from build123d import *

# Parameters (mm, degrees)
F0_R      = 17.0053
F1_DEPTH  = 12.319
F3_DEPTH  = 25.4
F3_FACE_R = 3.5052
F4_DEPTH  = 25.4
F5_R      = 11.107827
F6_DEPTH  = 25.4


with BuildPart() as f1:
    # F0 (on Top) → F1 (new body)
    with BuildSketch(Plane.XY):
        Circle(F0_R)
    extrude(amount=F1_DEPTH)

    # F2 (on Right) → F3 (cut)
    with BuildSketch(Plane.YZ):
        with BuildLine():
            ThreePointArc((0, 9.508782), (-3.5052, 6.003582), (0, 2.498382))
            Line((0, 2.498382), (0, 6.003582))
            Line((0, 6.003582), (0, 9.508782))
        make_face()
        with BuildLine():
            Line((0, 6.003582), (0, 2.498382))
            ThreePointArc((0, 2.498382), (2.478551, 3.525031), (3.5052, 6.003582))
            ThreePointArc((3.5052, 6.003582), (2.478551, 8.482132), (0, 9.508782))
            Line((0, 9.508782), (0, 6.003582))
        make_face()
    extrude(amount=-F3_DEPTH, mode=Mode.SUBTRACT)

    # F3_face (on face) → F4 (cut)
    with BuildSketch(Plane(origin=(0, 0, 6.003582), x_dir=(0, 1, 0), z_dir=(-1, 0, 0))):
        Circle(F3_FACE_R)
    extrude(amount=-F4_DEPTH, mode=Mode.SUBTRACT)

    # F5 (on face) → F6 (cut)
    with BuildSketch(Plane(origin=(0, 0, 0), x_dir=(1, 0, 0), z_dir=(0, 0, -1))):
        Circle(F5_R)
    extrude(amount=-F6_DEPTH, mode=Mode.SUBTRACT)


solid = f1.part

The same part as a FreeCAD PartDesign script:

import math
import FreeCAD as App
import Part
import Sketcher
from FreeCAD import Vector
Q = App.Units.Quantity

doc = App.newDocument("Part")
body = doc.addObject("PartDesign::Body", "Body")

# Sketch on XY plane
sketch1 = body.newObject("Sketcher::SketchObject", "Sketch")
sketch1.AttachmentSupport = (doc.getObject("XY_Plane"), [""])
sketch1.MapMode = "FlatFace"
sketch1.addGeometry(Part.Circle(Vector(0, 0, 0), Vector(0, 0, 1), 17), False)
sketch1.addConstraint([
    Sketcher.Constraint("Coincident", 0, 3, -1, 1),
    Sketcher.Constraint("Diameter", 0, Q("1.339 in")),
])
pad1 = body.newObject("PartDesign::Pad", "Pad")
pad1.Profile = sketch1
pad1.Length = Q("0.485 in")

# Sketch on YZ plane
sketch2 = body.newObject("Sketcher::SketchObject", "Sketch001")
sketch2.AttachmentSupport = (doc.getObject("YZ_Plane"), [""])
sketch2.MapMode = "FlatFace"
sketch2.addGeometry([
    Part.ArcOfCircle(Part.Circle(Vector(0, 6, 0), Vector(0, 0, 1), 3.5), math.radians(90), math.radians(270)),
    Part.ArcOfCircle(Part.Circle(Vector(0, 6, 0), Vector(0, 0, 1), 3.5), math.radians(-90), math.radians(0)),
    Part.ArcOfCircle(Part.Circle(Vector(0, 6, 0), Vector(0, 0, 1), 3.5), math.radians(0), math.radians(90)),
], False)
sketch2.addConstraint([
    Sketcher.Constraint("Tangent", 0, 2, 1, 1),
    Sketcher.Constraint("Tangent", 1, 2, 2, 1),
    Sketcher.Constraint("Tangent", 2, 2, 0, 1),
    Sketcher.Constraint("PointOnObject", 0, 3, -2),
    Sketcher.Constraint("PointOnObject", 0, 2, -2),
    Sketcher.Constraint("PointOnObject", 2, 2, -2),
    Sketcher.Constraint("Horizontal", 2, 3, 1, 2),
    Sketcher.Constraint("Radius", 0, Q("0.138 in")),
    Sketcher.Constraint("DistanceY", -1, 1, 0, 3, 6.003582),
])
pocket1 = body.newObject("PartDesign::Pocket", "Pocket")
pocket1.Profile = sketch2
pocket1.Length = Q("1 in")

# Sketch on YZ plane
sketch3 = body.newObject("Sketcher::SketchObject", "Sketch002")
sketch3.AttachmentSupport = (doc.getObject("YZ_Plane"), [""])
sketch3.MapMode = "FlatFace"
sketch3.addGeometry(Part.Circle(Vector(0, 6, 0), Vector(0, 0, 1), 3.5), False)
sketch3.addConstraint([
    Sketcher.Constraint("PointOnObject", 0, 3, -2),
    Sketcher.Constraint("Diameter", 0, Q("0.276 in")),
    Sketcher.Constraint("DistanceY", -1, 1, 0, 3, 6.003582),
])
pocket2 = body.newObject("PartDesign::Pocket", "Pocket001")
pocket2.Profile = sketch3
pocket2.Length = Q("1 in")
pocket2.Reversed = True

# Sketch on XY plane
sketch4 = body.newObject("Sketcher::SketchObject", "Sketch003")
sketch4.AttachmentSupport = (doc.getObject("XY_Plane"), [""])
sketch4.MapMode = "FlatFace"
sketch4.addGeometry(Part.Circle(Vector(0, 0, 0), Vector(0, 0, 1), 11), False)
sketch4.addConstraint([
    Sketcher.Constraint("Coincident", 0, 3, -1, 1),
    Sketcher.Constraint("Diameter", 0, 22.215654),
])
pocket3 = body.newObject("PartDesign::Pocket", "Pocket002")
pocket3.Profile = sketch4
pocket3.Length = Q("1 in")
pocket3.Reversed = True

doc.recompute()
